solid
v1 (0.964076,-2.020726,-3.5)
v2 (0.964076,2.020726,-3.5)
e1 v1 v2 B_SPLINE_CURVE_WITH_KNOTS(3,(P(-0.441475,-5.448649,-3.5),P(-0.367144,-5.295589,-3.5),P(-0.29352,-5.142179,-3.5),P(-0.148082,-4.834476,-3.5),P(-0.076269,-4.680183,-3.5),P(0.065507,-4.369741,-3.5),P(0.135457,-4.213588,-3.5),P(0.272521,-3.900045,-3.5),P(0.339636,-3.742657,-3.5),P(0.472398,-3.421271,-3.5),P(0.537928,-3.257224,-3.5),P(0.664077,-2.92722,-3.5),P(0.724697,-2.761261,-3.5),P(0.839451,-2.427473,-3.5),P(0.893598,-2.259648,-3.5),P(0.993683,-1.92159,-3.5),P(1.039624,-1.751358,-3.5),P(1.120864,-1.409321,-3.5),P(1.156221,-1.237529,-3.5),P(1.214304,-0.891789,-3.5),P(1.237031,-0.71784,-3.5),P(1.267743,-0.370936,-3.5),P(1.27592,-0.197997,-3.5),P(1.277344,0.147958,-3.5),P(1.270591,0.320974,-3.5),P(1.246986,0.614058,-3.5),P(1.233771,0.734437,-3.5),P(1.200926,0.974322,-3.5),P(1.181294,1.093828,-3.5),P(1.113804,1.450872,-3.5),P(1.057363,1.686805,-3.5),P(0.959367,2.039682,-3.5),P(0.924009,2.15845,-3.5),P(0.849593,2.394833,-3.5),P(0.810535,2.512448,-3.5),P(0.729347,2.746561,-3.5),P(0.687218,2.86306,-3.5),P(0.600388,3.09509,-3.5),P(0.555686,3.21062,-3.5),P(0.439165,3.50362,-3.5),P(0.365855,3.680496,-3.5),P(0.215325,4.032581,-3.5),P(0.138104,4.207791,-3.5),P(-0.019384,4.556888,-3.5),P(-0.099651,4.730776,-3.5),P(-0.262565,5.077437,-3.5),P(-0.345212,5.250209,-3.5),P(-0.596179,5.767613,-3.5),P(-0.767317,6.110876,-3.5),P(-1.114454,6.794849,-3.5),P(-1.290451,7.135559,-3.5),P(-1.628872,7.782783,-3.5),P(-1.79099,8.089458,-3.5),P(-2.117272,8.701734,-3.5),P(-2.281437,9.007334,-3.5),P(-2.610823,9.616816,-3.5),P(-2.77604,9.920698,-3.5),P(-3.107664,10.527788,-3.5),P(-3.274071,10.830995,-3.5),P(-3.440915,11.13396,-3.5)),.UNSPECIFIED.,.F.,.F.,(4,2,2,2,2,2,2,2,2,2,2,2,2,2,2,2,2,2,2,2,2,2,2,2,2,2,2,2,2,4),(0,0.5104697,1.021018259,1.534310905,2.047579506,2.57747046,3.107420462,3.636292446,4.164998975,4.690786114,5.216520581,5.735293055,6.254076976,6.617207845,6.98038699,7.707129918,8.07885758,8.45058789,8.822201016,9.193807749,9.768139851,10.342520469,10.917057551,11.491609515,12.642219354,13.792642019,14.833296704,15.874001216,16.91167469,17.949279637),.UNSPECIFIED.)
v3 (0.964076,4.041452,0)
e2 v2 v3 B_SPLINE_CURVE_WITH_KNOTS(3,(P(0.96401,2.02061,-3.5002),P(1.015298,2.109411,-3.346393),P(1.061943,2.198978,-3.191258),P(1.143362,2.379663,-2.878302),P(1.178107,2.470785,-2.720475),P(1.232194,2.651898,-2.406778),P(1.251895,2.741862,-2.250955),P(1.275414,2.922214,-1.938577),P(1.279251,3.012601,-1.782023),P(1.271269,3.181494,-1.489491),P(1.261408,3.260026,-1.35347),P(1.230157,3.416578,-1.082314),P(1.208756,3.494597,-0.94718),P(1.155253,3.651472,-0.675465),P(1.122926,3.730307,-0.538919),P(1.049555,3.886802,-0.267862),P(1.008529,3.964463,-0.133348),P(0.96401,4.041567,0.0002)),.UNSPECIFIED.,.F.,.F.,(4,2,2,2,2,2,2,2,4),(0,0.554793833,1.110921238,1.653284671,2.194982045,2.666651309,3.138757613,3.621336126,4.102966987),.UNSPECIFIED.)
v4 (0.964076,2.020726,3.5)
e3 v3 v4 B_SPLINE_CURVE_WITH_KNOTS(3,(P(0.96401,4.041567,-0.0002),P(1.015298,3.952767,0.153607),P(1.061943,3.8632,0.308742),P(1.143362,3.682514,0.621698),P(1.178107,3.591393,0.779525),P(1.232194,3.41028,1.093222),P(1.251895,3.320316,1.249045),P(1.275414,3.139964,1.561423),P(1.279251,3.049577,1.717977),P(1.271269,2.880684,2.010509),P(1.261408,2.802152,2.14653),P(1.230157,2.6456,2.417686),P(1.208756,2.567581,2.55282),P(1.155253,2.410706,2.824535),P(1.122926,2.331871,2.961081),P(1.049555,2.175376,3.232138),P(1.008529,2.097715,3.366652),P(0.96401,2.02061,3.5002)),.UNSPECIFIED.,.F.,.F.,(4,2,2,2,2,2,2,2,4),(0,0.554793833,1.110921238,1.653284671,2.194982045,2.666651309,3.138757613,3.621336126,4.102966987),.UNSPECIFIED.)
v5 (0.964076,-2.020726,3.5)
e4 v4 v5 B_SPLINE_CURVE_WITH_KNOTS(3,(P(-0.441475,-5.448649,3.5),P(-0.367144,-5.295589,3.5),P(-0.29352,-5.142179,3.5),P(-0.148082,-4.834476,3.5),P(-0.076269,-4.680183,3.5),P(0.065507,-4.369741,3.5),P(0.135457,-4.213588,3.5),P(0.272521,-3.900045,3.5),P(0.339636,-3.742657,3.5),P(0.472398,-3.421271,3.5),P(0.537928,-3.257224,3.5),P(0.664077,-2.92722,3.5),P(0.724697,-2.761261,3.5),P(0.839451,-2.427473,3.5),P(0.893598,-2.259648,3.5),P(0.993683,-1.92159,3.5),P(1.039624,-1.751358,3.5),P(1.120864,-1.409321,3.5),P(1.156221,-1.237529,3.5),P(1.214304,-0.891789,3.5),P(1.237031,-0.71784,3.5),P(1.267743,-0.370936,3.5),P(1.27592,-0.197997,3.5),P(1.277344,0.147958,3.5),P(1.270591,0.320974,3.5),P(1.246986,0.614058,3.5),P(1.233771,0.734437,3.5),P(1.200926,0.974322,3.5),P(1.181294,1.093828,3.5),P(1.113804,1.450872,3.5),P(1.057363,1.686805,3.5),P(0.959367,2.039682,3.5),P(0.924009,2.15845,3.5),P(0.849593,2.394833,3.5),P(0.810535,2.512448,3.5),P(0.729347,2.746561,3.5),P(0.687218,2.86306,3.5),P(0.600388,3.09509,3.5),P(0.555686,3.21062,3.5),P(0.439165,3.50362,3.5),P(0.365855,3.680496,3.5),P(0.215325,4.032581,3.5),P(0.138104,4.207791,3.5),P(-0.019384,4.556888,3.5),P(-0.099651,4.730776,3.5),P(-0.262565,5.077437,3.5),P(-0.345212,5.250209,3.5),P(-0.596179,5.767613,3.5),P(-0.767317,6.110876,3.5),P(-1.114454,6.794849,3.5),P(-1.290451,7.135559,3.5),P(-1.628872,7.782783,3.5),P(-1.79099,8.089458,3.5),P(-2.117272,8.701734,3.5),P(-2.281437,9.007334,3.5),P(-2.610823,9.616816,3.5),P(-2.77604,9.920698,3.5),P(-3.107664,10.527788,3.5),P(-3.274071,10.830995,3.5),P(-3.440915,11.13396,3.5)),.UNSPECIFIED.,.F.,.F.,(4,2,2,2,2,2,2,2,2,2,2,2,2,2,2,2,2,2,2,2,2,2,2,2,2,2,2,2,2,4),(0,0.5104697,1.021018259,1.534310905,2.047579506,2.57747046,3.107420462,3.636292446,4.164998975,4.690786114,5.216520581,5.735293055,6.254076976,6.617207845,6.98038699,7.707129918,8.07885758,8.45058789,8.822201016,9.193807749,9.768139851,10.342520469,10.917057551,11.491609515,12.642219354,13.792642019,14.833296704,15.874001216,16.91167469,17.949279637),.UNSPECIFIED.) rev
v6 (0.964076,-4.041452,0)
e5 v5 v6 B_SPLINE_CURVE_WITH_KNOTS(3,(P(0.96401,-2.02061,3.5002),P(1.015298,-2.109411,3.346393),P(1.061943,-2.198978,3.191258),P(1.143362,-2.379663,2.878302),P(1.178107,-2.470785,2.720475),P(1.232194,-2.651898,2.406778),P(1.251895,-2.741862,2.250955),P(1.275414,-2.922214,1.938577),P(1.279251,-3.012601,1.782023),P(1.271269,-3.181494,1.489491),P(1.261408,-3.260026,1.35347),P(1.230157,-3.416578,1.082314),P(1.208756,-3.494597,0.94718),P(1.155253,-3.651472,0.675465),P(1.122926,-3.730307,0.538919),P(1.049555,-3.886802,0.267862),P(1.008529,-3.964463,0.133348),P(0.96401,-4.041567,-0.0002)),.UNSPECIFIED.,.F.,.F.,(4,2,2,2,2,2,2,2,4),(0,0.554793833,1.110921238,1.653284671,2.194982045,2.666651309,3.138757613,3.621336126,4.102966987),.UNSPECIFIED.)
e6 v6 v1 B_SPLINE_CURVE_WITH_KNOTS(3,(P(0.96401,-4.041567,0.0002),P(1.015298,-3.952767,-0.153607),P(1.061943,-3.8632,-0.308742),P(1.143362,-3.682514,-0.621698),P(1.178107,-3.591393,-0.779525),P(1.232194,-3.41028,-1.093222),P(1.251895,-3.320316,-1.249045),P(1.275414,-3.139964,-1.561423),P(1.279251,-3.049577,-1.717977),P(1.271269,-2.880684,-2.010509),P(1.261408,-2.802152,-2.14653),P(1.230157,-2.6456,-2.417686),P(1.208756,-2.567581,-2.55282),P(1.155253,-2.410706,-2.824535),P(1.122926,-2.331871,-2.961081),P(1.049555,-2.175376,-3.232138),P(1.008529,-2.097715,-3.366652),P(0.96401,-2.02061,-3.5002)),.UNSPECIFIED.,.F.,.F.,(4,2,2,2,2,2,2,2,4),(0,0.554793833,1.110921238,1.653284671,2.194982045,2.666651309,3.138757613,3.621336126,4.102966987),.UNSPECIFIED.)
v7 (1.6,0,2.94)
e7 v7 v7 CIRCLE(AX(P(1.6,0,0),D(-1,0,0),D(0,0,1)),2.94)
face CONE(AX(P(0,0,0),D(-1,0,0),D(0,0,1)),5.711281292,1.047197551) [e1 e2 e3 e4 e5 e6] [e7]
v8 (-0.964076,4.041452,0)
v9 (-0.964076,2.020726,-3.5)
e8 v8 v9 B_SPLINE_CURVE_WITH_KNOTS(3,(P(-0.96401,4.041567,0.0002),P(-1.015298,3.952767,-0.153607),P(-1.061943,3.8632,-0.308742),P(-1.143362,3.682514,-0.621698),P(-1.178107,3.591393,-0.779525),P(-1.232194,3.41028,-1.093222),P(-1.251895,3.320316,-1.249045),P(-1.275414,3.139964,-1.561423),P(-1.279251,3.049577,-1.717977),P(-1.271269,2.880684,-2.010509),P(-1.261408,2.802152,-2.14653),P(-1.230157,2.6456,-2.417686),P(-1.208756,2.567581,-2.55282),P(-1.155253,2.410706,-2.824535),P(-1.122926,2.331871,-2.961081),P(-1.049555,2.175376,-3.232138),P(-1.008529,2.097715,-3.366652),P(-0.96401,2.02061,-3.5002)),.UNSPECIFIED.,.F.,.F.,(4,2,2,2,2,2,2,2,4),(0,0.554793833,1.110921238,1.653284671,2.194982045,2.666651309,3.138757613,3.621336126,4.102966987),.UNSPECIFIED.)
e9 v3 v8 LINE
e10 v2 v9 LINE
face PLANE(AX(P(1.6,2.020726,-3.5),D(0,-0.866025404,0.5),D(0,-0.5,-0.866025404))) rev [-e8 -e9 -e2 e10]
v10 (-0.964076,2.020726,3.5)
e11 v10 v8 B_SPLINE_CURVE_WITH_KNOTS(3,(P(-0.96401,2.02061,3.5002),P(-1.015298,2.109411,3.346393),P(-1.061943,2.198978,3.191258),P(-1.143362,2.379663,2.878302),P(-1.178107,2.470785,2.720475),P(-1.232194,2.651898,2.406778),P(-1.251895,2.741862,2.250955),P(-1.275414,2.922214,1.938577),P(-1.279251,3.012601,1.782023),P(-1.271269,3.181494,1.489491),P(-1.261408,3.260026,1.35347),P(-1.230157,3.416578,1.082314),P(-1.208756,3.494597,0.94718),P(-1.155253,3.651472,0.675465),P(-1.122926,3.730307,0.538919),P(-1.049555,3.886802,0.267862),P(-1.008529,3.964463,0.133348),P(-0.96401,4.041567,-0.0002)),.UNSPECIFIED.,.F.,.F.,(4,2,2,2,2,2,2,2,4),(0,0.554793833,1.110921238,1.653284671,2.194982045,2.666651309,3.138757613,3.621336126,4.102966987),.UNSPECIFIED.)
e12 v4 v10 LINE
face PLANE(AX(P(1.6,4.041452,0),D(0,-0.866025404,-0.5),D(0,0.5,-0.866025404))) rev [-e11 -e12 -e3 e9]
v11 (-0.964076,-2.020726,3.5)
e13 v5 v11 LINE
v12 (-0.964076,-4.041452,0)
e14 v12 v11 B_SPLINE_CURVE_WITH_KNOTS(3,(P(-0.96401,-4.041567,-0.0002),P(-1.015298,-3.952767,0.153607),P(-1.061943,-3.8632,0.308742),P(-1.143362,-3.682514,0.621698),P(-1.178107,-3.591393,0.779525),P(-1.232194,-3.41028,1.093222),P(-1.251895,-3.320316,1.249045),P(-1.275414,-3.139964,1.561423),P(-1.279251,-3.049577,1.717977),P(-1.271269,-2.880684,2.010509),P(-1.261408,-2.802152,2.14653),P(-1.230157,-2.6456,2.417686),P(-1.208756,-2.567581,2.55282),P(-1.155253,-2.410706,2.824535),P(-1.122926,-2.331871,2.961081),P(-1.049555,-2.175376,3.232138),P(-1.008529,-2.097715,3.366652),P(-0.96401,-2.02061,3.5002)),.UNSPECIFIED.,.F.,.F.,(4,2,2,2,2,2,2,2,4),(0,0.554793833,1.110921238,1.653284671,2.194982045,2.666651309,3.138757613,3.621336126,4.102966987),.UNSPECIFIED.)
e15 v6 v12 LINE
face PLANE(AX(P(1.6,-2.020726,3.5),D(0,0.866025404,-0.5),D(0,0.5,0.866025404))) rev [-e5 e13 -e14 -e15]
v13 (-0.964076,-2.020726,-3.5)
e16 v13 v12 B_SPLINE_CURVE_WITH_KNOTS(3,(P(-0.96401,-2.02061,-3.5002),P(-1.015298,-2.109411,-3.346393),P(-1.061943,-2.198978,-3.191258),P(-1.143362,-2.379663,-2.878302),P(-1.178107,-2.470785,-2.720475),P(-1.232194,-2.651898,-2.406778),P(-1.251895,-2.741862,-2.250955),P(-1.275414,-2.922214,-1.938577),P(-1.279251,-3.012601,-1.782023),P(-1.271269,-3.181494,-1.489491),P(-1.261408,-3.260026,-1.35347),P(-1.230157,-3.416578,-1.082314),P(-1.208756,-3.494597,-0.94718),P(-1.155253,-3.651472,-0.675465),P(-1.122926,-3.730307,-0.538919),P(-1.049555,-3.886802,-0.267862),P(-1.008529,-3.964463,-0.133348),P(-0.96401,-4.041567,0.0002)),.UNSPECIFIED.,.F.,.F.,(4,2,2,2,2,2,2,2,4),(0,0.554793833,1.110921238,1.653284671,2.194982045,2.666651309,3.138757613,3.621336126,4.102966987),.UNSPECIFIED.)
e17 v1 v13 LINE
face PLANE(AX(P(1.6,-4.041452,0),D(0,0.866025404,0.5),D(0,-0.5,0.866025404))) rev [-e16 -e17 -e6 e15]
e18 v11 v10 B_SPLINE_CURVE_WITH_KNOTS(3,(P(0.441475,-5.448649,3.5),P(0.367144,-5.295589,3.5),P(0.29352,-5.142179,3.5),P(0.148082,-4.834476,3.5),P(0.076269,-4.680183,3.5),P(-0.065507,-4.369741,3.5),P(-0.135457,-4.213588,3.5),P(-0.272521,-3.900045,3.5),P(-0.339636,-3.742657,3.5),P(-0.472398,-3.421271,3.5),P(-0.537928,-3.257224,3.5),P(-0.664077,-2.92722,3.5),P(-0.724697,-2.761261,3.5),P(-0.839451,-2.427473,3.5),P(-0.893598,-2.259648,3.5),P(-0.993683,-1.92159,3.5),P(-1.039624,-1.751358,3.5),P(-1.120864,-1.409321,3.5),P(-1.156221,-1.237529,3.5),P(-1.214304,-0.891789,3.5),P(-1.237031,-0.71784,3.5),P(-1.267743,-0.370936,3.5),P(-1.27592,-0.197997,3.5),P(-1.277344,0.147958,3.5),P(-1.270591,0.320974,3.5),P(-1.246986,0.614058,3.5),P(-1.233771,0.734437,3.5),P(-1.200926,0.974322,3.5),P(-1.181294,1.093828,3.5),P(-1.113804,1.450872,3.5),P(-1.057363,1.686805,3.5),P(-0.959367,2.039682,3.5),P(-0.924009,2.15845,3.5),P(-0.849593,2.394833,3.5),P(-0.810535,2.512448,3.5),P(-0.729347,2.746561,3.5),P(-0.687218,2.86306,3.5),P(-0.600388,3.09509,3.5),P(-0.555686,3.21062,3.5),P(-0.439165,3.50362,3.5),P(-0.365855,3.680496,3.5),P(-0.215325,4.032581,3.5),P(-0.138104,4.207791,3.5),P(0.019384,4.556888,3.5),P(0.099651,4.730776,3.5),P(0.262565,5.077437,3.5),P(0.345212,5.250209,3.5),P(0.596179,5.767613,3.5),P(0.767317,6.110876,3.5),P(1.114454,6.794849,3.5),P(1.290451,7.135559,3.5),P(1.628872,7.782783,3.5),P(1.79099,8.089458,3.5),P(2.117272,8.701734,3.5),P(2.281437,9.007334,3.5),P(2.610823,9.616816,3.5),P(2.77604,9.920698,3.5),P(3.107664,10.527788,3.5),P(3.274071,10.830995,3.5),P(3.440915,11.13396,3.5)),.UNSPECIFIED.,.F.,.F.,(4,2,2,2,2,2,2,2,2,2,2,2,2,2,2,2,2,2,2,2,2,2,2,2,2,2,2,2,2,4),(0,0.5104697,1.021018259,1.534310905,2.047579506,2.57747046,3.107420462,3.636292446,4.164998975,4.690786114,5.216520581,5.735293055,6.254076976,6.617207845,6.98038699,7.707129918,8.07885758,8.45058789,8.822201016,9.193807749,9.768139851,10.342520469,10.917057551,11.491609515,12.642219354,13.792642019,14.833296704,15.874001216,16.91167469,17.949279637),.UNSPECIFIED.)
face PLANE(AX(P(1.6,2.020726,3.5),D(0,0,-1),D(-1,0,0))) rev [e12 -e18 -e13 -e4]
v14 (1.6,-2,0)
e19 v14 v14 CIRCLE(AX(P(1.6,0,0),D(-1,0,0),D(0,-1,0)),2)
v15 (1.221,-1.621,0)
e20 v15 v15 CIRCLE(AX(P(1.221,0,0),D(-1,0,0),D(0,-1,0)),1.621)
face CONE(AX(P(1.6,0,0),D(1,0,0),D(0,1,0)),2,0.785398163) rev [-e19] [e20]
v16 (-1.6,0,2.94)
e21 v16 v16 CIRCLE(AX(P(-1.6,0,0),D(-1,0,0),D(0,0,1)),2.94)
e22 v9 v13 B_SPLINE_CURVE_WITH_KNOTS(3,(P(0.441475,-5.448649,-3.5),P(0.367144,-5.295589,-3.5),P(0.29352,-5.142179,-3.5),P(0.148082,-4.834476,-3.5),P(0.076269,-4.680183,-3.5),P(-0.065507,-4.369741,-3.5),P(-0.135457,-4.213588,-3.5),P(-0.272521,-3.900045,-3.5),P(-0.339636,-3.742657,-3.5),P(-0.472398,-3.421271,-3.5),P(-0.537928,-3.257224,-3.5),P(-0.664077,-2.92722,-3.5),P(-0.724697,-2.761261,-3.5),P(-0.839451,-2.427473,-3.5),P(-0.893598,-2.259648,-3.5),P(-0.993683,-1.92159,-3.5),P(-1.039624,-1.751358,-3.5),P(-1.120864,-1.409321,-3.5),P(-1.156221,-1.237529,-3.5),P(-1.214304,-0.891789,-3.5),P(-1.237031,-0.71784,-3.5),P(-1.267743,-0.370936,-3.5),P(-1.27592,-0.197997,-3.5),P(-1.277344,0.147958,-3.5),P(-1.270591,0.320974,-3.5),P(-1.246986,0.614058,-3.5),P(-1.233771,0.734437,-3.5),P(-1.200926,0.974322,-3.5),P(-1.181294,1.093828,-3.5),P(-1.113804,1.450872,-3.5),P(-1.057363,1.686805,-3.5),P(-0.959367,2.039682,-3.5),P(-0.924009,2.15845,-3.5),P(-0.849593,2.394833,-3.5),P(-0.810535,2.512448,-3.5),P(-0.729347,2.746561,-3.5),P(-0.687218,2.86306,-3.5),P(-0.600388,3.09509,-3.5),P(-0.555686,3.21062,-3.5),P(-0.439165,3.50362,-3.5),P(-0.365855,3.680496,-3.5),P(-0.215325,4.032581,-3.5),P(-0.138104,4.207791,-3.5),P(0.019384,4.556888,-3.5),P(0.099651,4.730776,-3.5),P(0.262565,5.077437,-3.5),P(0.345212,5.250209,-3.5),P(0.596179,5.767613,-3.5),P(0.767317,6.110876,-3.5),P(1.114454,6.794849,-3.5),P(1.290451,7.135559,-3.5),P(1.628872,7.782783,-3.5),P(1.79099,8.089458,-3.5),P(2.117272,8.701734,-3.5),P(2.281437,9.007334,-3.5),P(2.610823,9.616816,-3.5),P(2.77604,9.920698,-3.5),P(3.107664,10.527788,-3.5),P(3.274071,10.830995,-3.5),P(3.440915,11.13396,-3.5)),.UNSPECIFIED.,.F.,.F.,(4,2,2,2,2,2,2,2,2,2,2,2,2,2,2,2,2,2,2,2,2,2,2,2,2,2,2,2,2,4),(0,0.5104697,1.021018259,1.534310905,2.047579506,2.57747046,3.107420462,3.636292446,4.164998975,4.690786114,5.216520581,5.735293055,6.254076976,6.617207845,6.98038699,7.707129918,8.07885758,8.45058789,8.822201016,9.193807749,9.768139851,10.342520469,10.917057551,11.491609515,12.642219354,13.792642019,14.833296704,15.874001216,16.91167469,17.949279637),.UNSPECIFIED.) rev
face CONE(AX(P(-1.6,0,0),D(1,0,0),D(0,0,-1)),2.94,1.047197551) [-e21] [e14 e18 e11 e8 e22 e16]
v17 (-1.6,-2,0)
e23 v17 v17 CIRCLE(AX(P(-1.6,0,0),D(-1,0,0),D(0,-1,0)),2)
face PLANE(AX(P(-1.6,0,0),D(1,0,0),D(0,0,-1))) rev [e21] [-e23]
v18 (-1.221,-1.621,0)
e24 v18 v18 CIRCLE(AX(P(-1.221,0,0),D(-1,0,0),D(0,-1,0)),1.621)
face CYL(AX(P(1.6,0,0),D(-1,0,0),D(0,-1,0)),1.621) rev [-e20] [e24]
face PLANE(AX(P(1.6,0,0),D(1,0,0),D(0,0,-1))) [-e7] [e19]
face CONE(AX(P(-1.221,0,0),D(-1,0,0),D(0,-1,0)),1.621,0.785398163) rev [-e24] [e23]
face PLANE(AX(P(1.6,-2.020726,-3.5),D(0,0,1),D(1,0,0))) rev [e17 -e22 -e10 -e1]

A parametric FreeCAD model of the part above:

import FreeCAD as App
import Part
import Sketcher
from FreeCAD import Vector
Q = App.Units.Quantity

doc = App.newDocument("Part")
params = doc.addObject("Spreadsheet::Sheet", "Params")
for row, (alias, value) in enumerate([
    ("pad1_length", "1.6 mm"),
    ("pad1_length2", "1.6 mm"),
    ("sketch2_height", "2 mm"),
    ("sketch2_width", "3.2 mm"),
    ("groove_angle", "360 deg"),
    ("sketch3_width", "5 mm"),
    ("sketch3_width2", "13.2 mm"),
    ("sketch3_height", "5.94 mm"),
    ("groove2_angle", "360 deg"),
], start=1):
    params.set(f"A{row}", alias)
    params.set(f"B{row}", "=" + value)
    params.setAlias(f"B{row}", alias)

body = doc.addObject("PartDesign::Body", "Body")

sketch1 = body.newObject("Sketcher::SketchObject", "Sketch")
sketch1.AttachmentSupport = (doc.getObject("YZ_Plane"), [""])
sketch1.MapMode = "FlatFace"
sketch1.addGeometry([
    Part.LineSegment(Vector(-2, 3.5, 0), Vector(-4, 0, 0)),
    Part.LineSegment(Vector(-4, 0, 0), Vector(-2, -3.5, 0)),
    Part.LineSegment(Vector(-2, -3.5, 0), Vector(2, -3.5, 0)),
    Part.LineSegment(Vector(2, -3.5, 0), Vector(4, 0, 0)),
    Part.LineSegment(Vector(4, 0, 0), Vector(2, 3.5, 0)),
    Part.LineSegment(Vector(2, 3.5, 0), Vector(-2, 3.5, 0)),
], False)
sketch1.addConstraint([
    Sketcher.Constraint("Coincident", 0, 2, 1, 1),
    Sketcher.Constraint("Coincident", 1, 2, 2, 1),
    Sketcher.Constraint("Coincident", 2, 2, 3, 1),
    Sketcher.Constraint("Coincident", 3, 2, 4, 1),
    Sketcher.Constraint("Coincident", 4, 2, 5, 1),
    Sketcher.Constraint("Coincident", 5, 2, 0, 1),
    Sketcher.Constraint("Horizontal", 2),
    Sketcher.Constraint("Horizontal", 5),
    Sketcher.Constraint("Symmetric", 0, 2, 3, 2, -1, 1),
    Sketcher.Constraint("Symmetric", 1, 2, 4, 2, -1, 1),
    Sketcher.Constraint("PointOnObject", 0, 2, -1),
    Sketcher.Constraint("Parallel", 0, 3),
    Sketcher.Constraint("Vertical", 2, 2, 4, 2),
    Sketcher.Constraint("Angle", 0, Q("-120 deg")),
    Sketcher.Constraint("DistanceY", 2, 2, 4, 2, Q("7 mm")),
    Sketcher.Constraint("DistanceX", 2, 1, 2, 2, Q("4.041452 mm")),
])
pad1 = body.newObject("PartDesign::Pad", "Pad")
pad1.Profile = sketch1
pad1.Type = "TwoLengths"
pad1.setExpression("Length", "Params.pad1_length")
pad1.setExpression("Length2", "Params.pad1_length2")

sketch2 = body.newObject("Sketcher::SketchObject", "Sketch001")
sketch2.AttachmentSupport = (doc.getObject("XY_Plane"), [""])
sketch2.MapMode = "FlatFace"
sketch2.addGeometry([
    Part.LineSegment(Vector(-1.6, 2, 0), Vector(-1.6, 0, 0)),
    Part.LineSegment(Vector(-1.6, 0, 0), Vector(1.6, 0, 0)),
    Part.LineSegment(Vector(1.6, 0, 0), Vector(1.6, 2, 0)),
    Part.LineSegment(Vector(1.6, 2, 0), Vector(1.2, 1.6, 0)),
    Part.LineSegment(Vector(1.2, 1.6, 0), Vector(-1.2, 1.6, 0)),
    Part.LineSegment(Vector(-1.2, 1.6, 0), Vector(-1.6, 2, 0)),
], False)
sketch2.addConstraint([
    Sketcher.Constraint("Coincident", 0, 2, 1, 1),
    Sketcher.Constraint("Coincident", 1, 2, 2, 1),
    Sketcher.Constraint("Coincident", 2, 2, 3, 1),
    Sketcher.Constraint("Coincident", 3, 2, 4, 1),
    Sketcher.Constraint("Coincident", 4, 2, 5, 1),
    Sketcher.Constraint("Coincident", 5, 2, 0, 1),
    Sketcher.Constraint("Vertical", 0),
    Sketcher.Constraint("Horizontal", 1),
    Sketcher.Constraint("Vertical", 2),
    Sketcher.Constraint("Horizontal", 4),
    Sketcher.Constraint("Symmetric", 0, 2, 1, 2, -1, 1),
    Sketcher.Constraint("Perpendicular", 3, 5),
    Sketcher.Constraint("Horizontal", 2, 2, 5, 2),
    Sketcher.Constraint("Equal", 3, 5),
    Sketcher.Constraint("DistanceY", 0, 2, 0, 1, Q("2 mm")),
    Sketcher.Constraint("DistanceX", 1, 1, 1, 2, Q("3.2 mm")),
    Sketcher.Constraint("DistanceX", 4, 2, 4, 1, Q("2.442 mm")),
])
sketch2.setExpression("Constraints[14]", "Params.sketch2_height")
sketch2.setExpression("Constraints[15]", "Params.sketch2_width")
groove = body.newObject("PartDesign::Groove", "Groove")
groove.Profile = sketch2
groove.ReferenceAxis = (sketch2, ["H_Axis"])
groove.setExpression("Angle", "Params.groove_angle")

sketch3 = body.newObject("Sketcher::SketchObject", "Sketch002")
sketch3.AttachmentSupport = (doc.getObject("XY_Plane"), [""])
sketch3.MapMode = "FlatFace"
sketch3.addGeometry([
    Part.LineSegment(Vector(-6.6, 6.9, 0), Vector(-6.6, 1, 0)),
    Part.LineSegment(Vector(-6.6, 1, 0), Vector(-1.6, 1, 0)),
    Part.LineSegment(Vector(-1.6, 1, 0), Vector(-1.6, 2.9, 0)),
    Part.LineSegment(Vector(-1.6, 2.9, 0), Vector(0, 5.7, 0)),
    Part.LineSegment(Vector(0, 5.7, 0), Vector(1.6, 2.9, 0)),
    Part.LineSegment(Vector(1.6, 2.9, 0), Vector(1.6, 1, 0)),
    Part.LineSegment(Vector(1.6, 1, 0), Vector(6.6, 1, 0)),
    Part.LineSegment(Vector(6.6, 1, 0), Vector(6.6, 6.9, 0)),
    Part.LineSegment(Vector(6.6, 6.9, 0), Vector(-6.6, 6.9, 0)),
], False)
sketch3.addConstraint([
    Sketcher.Constraint("Coincident", 0, 2, 1, 1),
    Sketcher.Constraint("Coincident", 1, 2, 2, 1),
    Sketcher.Constraint("Coincident", 2, 2, 3, 1),
    Sketcher.Constraint("Coincident", 3, 2, 4, 1),
    Sketcher.Constraint("Coincident", 4, 2, 5, 1),
    Sketcher.Constraint("Coincident", 5, 2, 6, 1),
    Sketcher.Constraint("Coincident", 6, 2, 7, 1),
    Sketcher.Constraint("Coincident", 7, 2, 8, 1),
    Sketcher.Constraint("Coincident", 8, 2, 0, 1),
    Sketcher.Constraint("Vertical", 0),
    Sketcher.Constraint("Horizontal", 1),
    Sketcher.Constraint("Vertical", 2),
    Sketcher.Constraint("Vertical", 5),
    Sketcher.Constraint("Horizontal", 6),
    Sketcher.Constraint("Vertical", 7),
    Sketcher.Constraint("Horizontal", 8),
    Sketcher.Constraint("Symmetric", 2, 2, 4, 2, -2),
    Sketcher.Constraint("Symmetric", 0, 2, 6, 2, -2),
    Sketcher.Constraint("PointOnObject", 3, 2, -2),
    Sketcher.Constraint("DistanceX", 1, 1, 1, 2, Q("5 mm")),
    Sketcher.Constraint("Angle", 3, Q("60 deg")),
    Sketcher.Constraint("DistanceX", 8, 2, 8, 1, Q("13.2 mm")),
    Sketcher.Constraint("DistanceY", -1, 1, 0, 2, Q("1 mm")),
    Sketcher.Constraint("DistanceY", 4, 2, 7, 2, Q("4 mm")),
    Sketcher.Constraint("DistanceY", 0, 2, 0, 1, Q("5.94 mm")),
])
sketch3.setExpression("Constraints[19]", "Params.sketch3_width")
sketch3.setExpression("Constraints[21]", "Params.sketch3_width2")
sketch3.setExpression("Constraints[24]", "Params.sketch3_height")
groove2 = body.newObject("PartDesign::Groove", "Groove001")
groove2.Profile = sketch3
groove2.ReferenceAxis = (sketch3, ["H_Axis"])
groove2.setExpression("Angle", "Params.groove2_angle")

doc.recompute()
